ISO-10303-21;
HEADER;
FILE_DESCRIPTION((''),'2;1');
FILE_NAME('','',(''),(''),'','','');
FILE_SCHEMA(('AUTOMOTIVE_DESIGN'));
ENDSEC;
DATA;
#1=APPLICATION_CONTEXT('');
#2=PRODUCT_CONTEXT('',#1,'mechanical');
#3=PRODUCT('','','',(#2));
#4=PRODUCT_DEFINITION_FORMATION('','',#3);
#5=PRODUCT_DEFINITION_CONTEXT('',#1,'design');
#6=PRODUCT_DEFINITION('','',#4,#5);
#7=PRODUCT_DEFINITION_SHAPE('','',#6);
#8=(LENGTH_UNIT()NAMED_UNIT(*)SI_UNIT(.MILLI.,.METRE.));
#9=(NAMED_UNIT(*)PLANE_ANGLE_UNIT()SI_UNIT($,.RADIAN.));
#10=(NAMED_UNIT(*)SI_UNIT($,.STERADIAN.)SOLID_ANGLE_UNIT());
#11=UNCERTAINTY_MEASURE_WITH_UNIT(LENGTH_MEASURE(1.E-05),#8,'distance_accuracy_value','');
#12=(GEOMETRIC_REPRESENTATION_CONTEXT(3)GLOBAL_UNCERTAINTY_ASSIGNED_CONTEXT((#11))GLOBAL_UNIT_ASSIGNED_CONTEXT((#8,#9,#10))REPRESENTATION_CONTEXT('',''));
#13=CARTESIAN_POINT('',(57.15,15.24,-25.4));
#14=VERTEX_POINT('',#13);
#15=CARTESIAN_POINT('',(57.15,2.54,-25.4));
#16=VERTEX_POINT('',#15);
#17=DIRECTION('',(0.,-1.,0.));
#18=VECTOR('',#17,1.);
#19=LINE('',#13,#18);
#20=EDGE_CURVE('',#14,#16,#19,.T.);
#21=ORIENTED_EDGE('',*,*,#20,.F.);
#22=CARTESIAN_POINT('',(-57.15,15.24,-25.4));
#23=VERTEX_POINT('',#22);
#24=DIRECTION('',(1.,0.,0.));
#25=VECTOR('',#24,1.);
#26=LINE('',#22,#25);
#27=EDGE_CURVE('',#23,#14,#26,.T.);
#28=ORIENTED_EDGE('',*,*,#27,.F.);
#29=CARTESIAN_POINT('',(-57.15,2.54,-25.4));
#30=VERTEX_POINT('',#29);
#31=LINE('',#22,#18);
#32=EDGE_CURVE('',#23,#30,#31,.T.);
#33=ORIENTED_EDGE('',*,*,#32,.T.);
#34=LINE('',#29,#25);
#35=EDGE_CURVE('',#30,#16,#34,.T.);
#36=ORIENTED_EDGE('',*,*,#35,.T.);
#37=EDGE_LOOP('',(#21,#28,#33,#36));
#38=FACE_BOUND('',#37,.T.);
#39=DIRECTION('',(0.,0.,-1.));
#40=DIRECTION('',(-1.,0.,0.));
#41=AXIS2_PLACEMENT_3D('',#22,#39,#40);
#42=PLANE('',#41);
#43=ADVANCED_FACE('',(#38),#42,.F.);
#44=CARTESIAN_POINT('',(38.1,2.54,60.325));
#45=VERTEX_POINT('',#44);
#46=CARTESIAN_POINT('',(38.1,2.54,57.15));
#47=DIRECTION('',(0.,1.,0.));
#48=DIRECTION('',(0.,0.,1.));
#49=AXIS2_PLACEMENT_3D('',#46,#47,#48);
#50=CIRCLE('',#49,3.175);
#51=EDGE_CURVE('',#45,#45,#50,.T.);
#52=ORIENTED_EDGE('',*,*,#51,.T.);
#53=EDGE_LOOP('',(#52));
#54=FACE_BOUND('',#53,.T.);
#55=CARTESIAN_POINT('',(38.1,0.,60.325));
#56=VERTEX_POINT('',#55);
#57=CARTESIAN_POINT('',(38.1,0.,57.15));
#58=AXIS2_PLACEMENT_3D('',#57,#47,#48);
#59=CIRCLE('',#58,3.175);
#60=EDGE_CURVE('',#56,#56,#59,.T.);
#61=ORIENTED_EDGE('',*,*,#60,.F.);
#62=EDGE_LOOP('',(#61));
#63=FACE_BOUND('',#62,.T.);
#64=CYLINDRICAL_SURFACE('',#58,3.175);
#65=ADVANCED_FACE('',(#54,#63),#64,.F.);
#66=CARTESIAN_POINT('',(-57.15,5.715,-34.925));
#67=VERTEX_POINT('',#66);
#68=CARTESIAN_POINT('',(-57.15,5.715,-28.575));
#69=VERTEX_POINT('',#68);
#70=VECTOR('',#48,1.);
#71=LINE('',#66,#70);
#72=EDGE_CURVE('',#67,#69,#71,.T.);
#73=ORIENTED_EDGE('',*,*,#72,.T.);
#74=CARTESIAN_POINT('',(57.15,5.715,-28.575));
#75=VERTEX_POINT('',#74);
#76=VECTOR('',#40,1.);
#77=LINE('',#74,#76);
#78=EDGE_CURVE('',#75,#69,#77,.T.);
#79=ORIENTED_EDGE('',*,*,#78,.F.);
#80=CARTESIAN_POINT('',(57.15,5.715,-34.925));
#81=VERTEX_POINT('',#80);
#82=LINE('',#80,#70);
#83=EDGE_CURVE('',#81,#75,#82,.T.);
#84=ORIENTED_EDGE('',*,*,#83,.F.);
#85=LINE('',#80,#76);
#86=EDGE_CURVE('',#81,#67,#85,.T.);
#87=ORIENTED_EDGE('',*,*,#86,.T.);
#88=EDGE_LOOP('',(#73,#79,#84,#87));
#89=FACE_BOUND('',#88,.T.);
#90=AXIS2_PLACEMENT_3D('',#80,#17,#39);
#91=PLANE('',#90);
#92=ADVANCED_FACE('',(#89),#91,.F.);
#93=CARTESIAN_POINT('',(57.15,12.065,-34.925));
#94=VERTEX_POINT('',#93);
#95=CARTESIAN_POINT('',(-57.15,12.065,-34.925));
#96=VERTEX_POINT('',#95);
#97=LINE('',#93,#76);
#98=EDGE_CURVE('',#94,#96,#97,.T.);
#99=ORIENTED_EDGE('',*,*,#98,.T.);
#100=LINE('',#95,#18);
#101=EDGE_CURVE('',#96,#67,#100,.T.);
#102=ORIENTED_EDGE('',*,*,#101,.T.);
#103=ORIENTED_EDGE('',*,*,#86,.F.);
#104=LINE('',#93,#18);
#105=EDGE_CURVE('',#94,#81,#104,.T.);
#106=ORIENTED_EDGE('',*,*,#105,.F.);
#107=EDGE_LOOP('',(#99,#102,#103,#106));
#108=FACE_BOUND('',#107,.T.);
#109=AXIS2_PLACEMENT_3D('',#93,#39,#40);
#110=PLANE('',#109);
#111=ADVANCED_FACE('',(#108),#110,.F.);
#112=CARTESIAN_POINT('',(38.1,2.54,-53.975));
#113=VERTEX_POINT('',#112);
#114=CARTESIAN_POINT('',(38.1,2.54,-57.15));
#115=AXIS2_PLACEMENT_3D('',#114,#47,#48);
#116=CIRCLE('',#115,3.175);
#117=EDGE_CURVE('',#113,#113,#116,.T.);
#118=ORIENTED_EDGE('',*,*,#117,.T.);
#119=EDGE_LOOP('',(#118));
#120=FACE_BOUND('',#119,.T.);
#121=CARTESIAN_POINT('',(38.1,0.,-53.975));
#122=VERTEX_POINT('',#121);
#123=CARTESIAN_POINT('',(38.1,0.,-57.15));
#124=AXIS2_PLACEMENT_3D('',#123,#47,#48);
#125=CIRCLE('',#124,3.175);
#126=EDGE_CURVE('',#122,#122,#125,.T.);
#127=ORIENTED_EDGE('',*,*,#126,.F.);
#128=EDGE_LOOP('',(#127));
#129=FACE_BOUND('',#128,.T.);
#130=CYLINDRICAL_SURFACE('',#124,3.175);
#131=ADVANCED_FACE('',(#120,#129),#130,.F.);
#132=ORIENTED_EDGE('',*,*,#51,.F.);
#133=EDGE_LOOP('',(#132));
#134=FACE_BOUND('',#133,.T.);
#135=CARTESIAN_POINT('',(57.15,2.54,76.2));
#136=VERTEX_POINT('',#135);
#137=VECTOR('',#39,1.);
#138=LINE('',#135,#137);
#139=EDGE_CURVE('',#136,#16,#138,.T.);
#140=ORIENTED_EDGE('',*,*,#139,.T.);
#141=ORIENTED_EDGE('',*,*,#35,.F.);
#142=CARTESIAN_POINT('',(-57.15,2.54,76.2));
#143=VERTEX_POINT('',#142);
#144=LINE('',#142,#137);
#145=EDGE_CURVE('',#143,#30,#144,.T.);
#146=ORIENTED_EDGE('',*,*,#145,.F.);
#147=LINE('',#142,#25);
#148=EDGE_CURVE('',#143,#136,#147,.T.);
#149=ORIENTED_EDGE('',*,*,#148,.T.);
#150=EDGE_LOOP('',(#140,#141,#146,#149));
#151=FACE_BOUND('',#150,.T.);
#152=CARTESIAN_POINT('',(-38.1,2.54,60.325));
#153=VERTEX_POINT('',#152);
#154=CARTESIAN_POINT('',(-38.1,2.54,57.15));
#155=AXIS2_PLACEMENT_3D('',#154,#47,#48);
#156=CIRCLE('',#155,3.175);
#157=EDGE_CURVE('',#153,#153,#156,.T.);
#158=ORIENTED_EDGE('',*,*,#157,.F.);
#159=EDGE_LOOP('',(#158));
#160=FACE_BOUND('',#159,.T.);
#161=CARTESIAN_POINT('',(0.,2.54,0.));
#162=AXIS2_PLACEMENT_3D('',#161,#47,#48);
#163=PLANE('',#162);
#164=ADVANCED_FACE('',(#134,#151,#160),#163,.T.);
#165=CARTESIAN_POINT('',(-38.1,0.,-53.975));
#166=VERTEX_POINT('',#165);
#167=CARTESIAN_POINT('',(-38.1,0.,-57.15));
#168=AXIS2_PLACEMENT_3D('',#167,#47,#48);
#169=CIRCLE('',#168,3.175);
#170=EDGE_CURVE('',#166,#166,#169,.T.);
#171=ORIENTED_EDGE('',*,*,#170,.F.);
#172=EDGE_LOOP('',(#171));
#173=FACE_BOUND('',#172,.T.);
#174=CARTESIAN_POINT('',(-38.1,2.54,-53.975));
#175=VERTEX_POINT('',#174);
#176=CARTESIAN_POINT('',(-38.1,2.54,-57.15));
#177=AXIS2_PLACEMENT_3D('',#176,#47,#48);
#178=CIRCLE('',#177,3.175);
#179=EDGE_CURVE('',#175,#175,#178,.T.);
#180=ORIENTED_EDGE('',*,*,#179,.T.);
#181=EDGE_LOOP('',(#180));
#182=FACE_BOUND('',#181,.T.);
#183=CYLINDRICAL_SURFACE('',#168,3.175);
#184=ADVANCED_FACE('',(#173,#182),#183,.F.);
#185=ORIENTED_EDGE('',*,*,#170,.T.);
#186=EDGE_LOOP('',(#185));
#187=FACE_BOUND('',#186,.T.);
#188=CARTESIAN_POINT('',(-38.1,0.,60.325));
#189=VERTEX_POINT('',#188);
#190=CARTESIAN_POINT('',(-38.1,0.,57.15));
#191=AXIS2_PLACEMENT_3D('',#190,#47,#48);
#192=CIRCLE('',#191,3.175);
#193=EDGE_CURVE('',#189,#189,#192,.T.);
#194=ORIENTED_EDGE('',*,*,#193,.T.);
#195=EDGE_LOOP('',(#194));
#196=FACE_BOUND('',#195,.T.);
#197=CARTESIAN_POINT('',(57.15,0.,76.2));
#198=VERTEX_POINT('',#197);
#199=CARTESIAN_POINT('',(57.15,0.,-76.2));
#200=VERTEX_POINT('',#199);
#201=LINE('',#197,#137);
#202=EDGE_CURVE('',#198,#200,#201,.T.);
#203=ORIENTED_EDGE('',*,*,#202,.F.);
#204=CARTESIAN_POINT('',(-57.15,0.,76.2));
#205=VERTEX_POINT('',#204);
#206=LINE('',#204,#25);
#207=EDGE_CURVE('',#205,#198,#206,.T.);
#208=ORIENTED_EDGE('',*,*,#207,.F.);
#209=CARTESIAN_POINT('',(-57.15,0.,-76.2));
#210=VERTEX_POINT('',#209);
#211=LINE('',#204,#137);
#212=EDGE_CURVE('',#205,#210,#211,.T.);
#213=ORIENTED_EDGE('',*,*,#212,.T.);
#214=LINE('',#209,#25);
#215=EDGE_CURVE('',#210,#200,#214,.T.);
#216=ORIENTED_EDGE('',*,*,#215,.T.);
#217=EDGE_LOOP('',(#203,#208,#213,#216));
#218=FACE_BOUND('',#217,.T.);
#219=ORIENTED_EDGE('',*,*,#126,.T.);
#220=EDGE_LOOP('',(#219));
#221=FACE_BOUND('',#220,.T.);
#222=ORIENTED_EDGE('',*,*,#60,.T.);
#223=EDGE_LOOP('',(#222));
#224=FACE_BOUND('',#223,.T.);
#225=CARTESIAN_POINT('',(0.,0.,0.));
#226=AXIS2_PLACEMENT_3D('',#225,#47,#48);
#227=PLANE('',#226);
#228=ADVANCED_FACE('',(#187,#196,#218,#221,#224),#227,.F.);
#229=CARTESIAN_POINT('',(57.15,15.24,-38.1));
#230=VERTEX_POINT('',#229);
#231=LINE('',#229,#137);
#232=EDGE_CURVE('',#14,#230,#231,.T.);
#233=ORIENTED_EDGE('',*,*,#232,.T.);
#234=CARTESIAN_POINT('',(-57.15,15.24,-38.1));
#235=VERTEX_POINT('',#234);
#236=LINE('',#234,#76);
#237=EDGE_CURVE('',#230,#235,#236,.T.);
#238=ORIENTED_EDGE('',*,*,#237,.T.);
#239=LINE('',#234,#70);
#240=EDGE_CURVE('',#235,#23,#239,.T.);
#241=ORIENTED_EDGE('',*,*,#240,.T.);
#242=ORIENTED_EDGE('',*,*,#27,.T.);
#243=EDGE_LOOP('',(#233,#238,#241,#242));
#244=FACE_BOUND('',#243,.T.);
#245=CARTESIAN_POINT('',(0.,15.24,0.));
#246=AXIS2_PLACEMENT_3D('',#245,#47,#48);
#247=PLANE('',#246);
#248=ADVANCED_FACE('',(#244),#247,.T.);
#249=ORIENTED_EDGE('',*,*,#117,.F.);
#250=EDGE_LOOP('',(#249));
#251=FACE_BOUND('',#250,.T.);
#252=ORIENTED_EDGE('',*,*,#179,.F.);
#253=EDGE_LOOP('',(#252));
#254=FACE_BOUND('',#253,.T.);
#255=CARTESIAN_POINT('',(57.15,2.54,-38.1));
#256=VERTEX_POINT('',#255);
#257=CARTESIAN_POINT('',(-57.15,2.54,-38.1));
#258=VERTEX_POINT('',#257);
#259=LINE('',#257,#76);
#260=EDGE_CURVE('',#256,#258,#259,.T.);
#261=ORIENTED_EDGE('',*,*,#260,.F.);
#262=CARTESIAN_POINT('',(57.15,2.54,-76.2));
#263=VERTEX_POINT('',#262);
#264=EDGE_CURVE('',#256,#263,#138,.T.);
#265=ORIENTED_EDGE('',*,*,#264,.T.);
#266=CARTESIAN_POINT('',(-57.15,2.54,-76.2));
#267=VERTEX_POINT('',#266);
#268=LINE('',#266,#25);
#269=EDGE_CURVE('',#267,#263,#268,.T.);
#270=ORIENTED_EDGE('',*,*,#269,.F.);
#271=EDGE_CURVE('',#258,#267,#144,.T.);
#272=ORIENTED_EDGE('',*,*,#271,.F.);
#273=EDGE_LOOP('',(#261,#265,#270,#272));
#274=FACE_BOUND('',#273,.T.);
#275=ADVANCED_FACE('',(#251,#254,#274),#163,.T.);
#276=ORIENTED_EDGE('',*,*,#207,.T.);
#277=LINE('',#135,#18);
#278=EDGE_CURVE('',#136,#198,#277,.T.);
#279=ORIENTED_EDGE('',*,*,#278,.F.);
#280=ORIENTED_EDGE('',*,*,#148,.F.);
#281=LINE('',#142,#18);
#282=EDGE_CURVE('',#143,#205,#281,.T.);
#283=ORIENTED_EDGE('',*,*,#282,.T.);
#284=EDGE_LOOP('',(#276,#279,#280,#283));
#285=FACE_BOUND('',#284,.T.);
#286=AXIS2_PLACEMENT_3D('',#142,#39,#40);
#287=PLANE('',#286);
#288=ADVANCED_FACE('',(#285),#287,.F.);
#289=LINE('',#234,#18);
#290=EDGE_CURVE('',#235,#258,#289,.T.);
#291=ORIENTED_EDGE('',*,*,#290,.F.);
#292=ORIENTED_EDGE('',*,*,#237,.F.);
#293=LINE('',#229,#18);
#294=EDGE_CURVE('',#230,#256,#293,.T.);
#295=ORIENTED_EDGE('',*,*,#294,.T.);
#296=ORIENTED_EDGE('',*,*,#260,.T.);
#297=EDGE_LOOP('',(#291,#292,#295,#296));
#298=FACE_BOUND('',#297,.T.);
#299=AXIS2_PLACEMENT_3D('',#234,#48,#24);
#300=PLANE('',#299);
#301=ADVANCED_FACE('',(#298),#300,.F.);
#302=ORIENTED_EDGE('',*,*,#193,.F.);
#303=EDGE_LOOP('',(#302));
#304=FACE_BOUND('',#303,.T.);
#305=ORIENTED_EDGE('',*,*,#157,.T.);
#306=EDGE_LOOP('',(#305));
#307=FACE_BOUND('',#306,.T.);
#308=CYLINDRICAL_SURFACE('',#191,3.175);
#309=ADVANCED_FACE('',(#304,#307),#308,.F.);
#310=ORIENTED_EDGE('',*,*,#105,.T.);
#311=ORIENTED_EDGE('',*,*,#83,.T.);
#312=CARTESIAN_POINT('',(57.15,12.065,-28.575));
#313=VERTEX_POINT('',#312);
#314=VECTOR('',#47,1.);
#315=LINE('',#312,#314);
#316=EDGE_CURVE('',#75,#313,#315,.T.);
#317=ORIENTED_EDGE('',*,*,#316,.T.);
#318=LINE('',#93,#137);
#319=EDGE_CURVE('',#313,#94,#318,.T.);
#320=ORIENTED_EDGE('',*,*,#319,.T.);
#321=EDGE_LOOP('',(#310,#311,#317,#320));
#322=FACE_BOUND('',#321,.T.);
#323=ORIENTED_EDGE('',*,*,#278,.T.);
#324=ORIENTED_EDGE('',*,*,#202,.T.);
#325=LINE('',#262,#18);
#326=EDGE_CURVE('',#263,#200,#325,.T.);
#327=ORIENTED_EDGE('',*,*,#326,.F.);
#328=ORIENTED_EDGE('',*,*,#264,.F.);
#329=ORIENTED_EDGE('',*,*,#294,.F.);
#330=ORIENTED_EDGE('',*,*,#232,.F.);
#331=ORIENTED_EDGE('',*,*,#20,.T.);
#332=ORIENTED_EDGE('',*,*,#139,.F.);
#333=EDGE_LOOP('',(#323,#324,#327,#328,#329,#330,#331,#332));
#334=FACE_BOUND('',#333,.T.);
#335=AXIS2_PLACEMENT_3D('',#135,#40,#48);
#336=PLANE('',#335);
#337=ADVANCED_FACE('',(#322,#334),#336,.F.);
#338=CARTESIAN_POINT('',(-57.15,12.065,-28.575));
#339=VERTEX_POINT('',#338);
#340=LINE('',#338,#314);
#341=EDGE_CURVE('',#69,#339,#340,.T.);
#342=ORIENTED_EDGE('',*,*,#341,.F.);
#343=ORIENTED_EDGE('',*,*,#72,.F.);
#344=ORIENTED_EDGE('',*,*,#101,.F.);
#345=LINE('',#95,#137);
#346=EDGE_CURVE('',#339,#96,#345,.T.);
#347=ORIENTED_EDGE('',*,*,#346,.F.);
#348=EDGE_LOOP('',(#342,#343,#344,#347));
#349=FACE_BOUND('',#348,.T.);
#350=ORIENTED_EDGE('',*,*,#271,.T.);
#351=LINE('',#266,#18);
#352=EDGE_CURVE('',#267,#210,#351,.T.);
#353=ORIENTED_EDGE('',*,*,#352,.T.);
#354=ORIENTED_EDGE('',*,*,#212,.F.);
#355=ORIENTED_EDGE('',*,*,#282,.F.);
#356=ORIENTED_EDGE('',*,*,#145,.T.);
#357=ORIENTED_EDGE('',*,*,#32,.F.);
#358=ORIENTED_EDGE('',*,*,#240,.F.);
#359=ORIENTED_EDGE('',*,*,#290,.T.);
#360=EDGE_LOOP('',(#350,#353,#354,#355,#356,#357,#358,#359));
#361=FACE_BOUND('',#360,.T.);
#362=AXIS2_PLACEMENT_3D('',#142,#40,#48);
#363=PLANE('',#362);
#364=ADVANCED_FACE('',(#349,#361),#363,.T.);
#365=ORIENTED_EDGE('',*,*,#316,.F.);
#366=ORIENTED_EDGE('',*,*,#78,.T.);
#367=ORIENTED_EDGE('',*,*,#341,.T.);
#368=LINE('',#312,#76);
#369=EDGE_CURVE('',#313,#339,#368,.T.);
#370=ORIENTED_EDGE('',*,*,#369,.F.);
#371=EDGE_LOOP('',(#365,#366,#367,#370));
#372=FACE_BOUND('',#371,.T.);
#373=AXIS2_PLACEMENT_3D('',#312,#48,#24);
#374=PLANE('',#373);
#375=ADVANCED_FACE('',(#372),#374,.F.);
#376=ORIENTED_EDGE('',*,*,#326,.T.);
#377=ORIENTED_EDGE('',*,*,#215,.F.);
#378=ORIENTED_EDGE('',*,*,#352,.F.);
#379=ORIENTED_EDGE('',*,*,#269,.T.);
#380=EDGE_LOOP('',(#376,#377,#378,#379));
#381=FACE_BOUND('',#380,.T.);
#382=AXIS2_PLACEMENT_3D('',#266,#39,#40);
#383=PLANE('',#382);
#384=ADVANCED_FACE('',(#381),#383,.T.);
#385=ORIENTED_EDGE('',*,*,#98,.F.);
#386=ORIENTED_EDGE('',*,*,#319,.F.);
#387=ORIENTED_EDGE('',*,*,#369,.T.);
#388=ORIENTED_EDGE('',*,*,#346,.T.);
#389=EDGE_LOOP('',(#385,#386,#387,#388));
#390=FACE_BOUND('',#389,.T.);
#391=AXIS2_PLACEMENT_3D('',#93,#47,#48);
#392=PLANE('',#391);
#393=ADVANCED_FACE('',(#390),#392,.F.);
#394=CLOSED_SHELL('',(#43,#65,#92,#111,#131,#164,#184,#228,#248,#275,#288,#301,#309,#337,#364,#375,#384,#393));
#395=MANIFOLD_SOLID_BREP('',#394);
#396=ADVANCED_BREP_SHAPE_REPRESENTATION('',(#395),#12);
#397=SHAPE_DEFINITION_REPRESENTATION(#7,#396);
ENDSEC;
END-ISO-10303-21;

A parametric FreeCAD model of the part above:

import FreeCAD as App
import Part
import Sketcher
Q = App.Units.Quantity

doc = App.newDocument("Part")
body = doc.addObject("PartDesign::Body", "Body")

sketch1 = doc.addObject("Sketcher::SketchObject", "Sketch")
body.addObject(sketch1)
sketch1.AttachmentSupport = (doc.XZ_Plane, [""])
sketch1.MapMode = "FlatFace"
sketch1.addGeometry([
    Part.LineSegment(App.Vector(-57, -76, 0), App.Vector(-57, 76, 0)),
    Part.LineSegment(App.Vector(-57, 76, 0), App.Vector(57, 76, 0)),
    Part.LineSegment(App.Vector(57, 76, 0), App.Vector(57, -76, 0)),
    Part.LineSegment(App.Vector(57, -76, 0), App.Vector(-57, -76, 0)),
], False)
sketch1.addConstraint([
    Sketcher.Constraint("Coincident", 0, 2, 1, 1),
    Sketcher.Constraint("Coincident", 1, 2, 2, 1),
    Sketcher.Constraint("Coincident", 2, 2, 3, 1),
    Sketcher.Constraint("Coincident", 3, 2, 0, 1),
    Sketcher.Constraint("Vertical", 0),
    Sketcher.Constraint("Horizontal", 1),
    Sketcher.Constraint("Vertical", 2),
    Sketcher.Constraint("Horizontal", 3),
    Sketcher.Constraint("Symmetric", 0, 2, 2, 2, -1, 1),
    Sketcher.Constraint("DistanceY", 0, 1, 0, 2, Q("6 in")),
    Sketcher.Constraint("DistanceX", 1, 1, 1, 2, Q("4.5 in")),
])
pad1 = doc.addObject("PartDesign::Pad", "Pad")
body.addObject(pad1)
pad1.Profile = sketch1
pad1.Length = Q("0.1 in")
pad1.Reversed = True

sketch2 = doc.addObject("Sketcher::SketchObject", "Sketch001")
body.addObject(sketch2)
sketch2.AttachmentSupport = (doc.XZ_Plane, [""])
sketch2.MapMode = "FlatFace"
sketch2.AttachmentOffset = App.Placement(App.Vector(0, 0, -0.1 * 25.4), App.Rotation())
sketch2.addGeometry([
    Part.LineSegment(App.Vector(-57, -38, 0), App.Vector(-57, -25, 0)),
    Part.LineSegment(App.Vector(-57, -25, 0), App.Vector(57, -25, 0)),
    Part.LineSegment(App.Vector(57, -25, 0), App.Vector(57, -38, 0)),
    Part.LineSegment(App.Vector(57, -38, 0), App.Vector(-57, -38, 0)),
], False)
sketch2.addConstraint([
    Sketcher.Constraint("Coincident", 0, 2, 1, 1),
    Sketcher.Constraint("Coincident", 1, 2, 2, 1),
    Sketcher.Constraint("Coincident", 2, 2, 3, 1),
    Sketcher.Constraint("Coincident", 3, 2, 0, 1),
    Sketcher.Constraint("Vertical", 0),
    Sketcher.Constraint("Horizontal", 1),
    Sketcher.Constraint("Vertical", 2),
    Sketcher.Constraint("Horizontal", 3),
    Sketcher.Constraint("DistanceX", 1, 1, 1, 2, Q("4.5 in")),
    Sketcher.Constraint("DistanceY", 0, 1, 0, 2, Q("0.5 in")),
    Sketcher.Constraint("DistanceY", 0, 2, -1, 1, Q("1 in")),
    Sketcher.Constraint("DistanceX", 0, 2, -1, 1, Q("2.25 in")),
])
pad2 = doc.addObject("PartDesign::Pad", "Pad001")
body.addObject(pad2)
pad2.Profile = sketch2
pad2.Length = Q("0.5 in")
pad2.Reversed = True

sketch3 = doc.addObject("Sketcher::SketchObject", "Sketch002")
body.addObject(sketch3)
sketch3.AttachmentSupport = (doc.YZ_Plane, [""])
sketch3.MapMode = "FlatFace"
sketch3.AttachmentOffset = App.Placement(App.Vector(0, 0, -2.25 * 25.4), App.Rotation())
sketch3.addGeometry([
    Part.LineSegment(App.Vector(12, -35, 0), App.Vector(6, -35, 0)),
    Part.LineSegment(App.Vector(6, -35, 0), App.Vector(6, -29, 0)),
    Part.LineSegment(App.Vector(6, -29, 0), App.Vector(12, -29, 0)),
    Part.LineSegment(App.Vector(12, -29, 0), App.Vector(12, -35, 0)),
], False)
sketch3.addConstraint([
    Sketcher.Constraint("Coincident", 0, 2, 1, 1),
    Sketcher.Constraint("Coincident", 1, 2, 2, 1),
    Sketcher.Constraint("Coincident", 2, 2, 3, 1),
    Sketcher.Constraint("Coincident", 3, 2, 0, 1),
    Sketcher.Constraint("Horizontal", 0),
    Sketcher.Constraint("Vertical", 1),
    Sketcher.Constraint("Horizontal", 2),
    Sketcher.Constraint("Vertical", 3),
    Sketcher.Constraint("Equal", 2, 1),
    Sketcher.Constraint("DistanceX", 0, 2, 0, 1, Q("0.25 in")),
    Sketcher.Constraint("DistanceX", -1, 1, 0, 2, Q("0.225 in")),
    Sketcher.Constraint("DistanceY", 0, 2, -1, 1, Q("1.375 in")),
])
pocket1 = doc.addObject("PartDesign::Pocket", "Pocket")
body.addObject(pocket1)
pocket1.Profile = sketch3
pocket1.Type = "ThroughAll"
pocket1.Reversed = True

sketch4 = doc.addObject("Sketcher::SketchObject", "Sketch003")
body.addObject(sketch4)
sketch4.AttachmentSupport = (doc.XZ_Plane, [""])
sketch4.MapMode = "FlatFace"
sketch4.AttachmentOffset = App.Placement(App.Vector(0, 0, -0.1 * 25.4), App.Rotation())
sketch4.addGeometry([
    Part.Circle(App.Vector(-38.1, -57.1, 0), App.Vector(0, 0, 1), 3.2),
    Part.Circle(App.Vector(38.1, -57.1, 0), App.Vector(0, 0, 1), 3.2),
    Part.Circle(App.Vector(-38.1, 57.1, 0), App.Vector(0, 0, 1), 3.2),
    Part.Circle(App.Vector(38.1, 57.1, 0), App.Vector(0, 0, 1), 3.2),
], False)
sketch4.addConstraint([
    Sketcher.Constraint("Equal", 0, 1),
    Sketcher.Constraint("Equal", 1, 2),
    Sketcher.Constraint("Equal", 2, 3),
    Sketcher.Constraint("Symmetric", 1, 3, 2, 3, -1, 1),
    Sketcher.Constraint("Symmetric", 0, 3, 3, 3, -1, 1),
    Sketcher.Constraint("Symmetric", 0, 3, 1, 3, -2),
    Sketcher.Constraint("Diameter", 0, Q("0.25 in")),
    Sketcher.Constraint("DistanceX", 0, 3, 1, 3, Q("3 in")),
    Sketcher.Constraint("DistanceY", 0, 3, 2, 3, Q("4.5 in")),
])
pocket2 = doc.addObject("PartDesign::Pocket", "Pocket001")
body.addObject(pocket2)
pocket2.Profile = sketch4
pocket2.Type = "ThroughAll"
pocket2.Reversed = True

doc.recompute()
